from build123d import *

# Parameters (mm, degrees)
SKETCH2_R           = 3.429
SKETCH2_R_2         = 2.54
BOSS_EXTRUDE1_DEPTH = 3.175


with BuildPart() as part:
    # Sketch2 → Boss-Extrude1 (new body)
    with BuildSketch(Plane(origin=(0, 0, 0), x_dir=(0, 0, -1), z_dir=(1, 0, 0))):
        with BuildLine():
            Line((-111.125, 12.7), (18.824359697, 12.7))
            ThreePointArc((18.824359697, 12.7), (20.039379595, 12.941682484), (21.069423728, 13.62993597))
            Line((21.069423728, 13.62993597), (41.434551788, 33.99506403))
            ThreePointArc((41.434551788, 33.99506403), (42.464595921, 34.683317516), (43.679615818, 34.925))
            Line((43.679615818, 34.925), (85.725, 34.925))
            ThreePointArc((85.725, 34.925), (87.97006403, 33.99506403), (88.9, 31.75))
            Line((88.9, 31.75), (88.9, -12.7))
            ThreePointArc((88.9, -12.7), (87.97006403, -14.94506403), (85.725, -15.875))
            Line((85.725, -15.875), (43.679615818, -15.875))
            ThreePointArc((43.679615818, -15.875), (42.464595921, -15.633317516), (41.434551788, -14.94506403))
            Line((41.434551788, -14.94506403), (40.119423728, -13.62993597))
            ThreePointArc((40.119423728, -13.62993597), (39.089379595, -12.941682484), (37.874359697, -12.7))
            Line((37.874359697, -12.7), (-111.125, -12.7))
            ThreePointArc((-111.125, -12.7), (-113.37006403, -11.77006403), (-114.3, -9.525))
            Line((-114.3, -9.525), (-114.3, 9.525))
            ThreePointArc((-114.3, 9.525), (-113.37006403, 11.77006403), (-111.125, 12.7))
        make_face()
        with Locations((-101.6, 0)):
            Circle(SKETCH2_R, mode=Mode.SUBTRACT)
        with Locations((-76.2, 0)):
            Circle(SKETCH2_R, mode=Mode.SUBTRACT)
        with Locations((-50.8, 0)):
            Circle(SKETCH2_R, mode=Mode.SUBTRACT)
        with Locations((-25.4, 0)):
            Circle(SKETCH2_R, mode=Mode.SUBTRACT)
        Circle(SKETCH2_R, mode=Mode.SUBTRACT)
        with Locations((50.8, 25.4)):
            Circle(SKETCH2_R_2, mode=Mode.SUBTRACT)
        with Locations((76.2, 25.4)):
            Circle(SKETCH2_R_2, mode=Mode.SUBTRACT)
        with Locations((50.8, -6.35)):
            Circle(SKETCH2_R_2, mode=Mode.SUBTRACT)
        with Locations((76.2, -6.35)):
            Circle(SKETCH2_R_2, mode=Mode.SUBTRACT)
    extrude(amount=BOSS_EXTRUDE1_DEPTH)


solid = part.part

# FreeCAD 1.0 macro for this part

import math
import FreeCAD as App
import Part
import Sketcher
Q = App.Units.Quantity

doc = App.newDocument("Part")
body = doc.addObject("PartDesign::Body", "Body")

# Sketch on YZ plane
sketch1 = body.newObject("Sketcher::SketchObject", "Sketch")
sketch1.AttachmentSupport = (doc.getObject("YZ_Plane"), [""])
sketch1.MapMode = "FlatFace"
sketch1.addGeometry([
    Part.LineSegment(App.Vector(12.7, -18.82436, 0), App.Vector(12.7, 111.125, 0)),  # 0
    Part.ArcOfCircle(Part.Circle(App.Vector(9.525, 111.125, 0), App.Vector(0, 0, 1), 3.175), math.radians(0), math.radians(90)),  # 1
    Part.LineSegment(App.Vector(9.525, 114.3, 0), App.Vector(-9.525, 114.3, 0)),  # 2
    Part.ArcOfCircle(Part.Circle(App.Vector(-9.525, 111.125, 0), App.Vector(0, 0, 1), 3.175), math.radians(90), math.radians(180)),  # 3
    Part.LineSegment(App.Vector(-12.7, 111.125, 0), App.Vector(-12.7, -37.87436, 0)),  # 4
    Part.ArcOfCircle(Part.Circle(App.Vector(-15.875, -37.87436, 0), App.Vector(0, 0, 1), 3.175), math.radians(-45), math.radians(0)),  # 5
    Part.LineSegment(App.Vector(-13.629936, -40.119424, 0), App.Vector(-14.945064, -41.434552, 0)),  # 6
    Part.ArcOfCircle(Part.Circle(App.Vector(-12.7, -43.679616, 0), App.Vector(0, 0, 1), 3.175), math.radians(135), math.radians(180)),  # 7
    Part.LineSegment(App.Vector(-15.875, -43.679616, 0), App.Vector(-15.875, -85.725, 0)),  # 8
    Part.ArcOfCircle(Part.Circle(App.Vector(-12.7, -85.725, 0), App.Vector(0, 0, 1), 3.175), math.radians(-180), math.radians(-90)),  # 9
    Part.LineSegment(App.Vector(-12.7, -88.9, 0), App.Vector(31.75, -88.9, 0)),  # 10
    Part.ArcOfCircle(Part.Circle(App.Vector(31.75, -85.725, 0), App.Vector(0, 0, 1), 3.175), math.radians(-90), math.radians(0)),  # 11
    Part.LineSegment(App.Vector(34.925, -85.725, 0), App.Vector(34.925, -43.679616, 0)),  # 12
    Part.ArcOfCircle(Part.Circle(App.Vector(31.75, -43.679616, 0), App.Vector(0, 0, 1), 3.175), math.radians(0), math.radians(45)),  # 13
    Part.LineSegment(App.Vector(33.995064, -41.434552, 0), App.Vector(13.629936, -21.069424, 0)),  # 14
    Part.ArcOfCircle(Part.Circle(App.Vector(15.875, -18.82436, 0), App.Vector(0, 0, 1), 3.175), math.radians(180), math.radians(225)),  # 15
    Part.Circle(App.Vector(-6.35, -76.2, 0), App.Vector(0, 0, 1), 2.54),  # 16
    Part.Circle(App.Vector(-6.35, -50.8, 0), App.Vector(0, 0, 1), 2.54),  # 17
    Part.Circle(App.Vector(0, 0, 0), App.Vector(0, 0, 1), 3.429),  # 18
    Part.Circle(App.Vector(0, 25.4, 0), App.Vector(0, 0, 1), 3.429),  # 19
    Part.Circle(App.Vector(0, 50.8, 0), App.Vector(0, 0, 1), 3.429),  # 20
    Part.Circle(App.Vector(0, 76.2, 0), App.Vector(0, 0, 1), 3.429),  # 21
    Part.Circle(App.Vector(0, 101.6, 0), App.Vector(0, 0, 1), 3.429),  # 22
    Part.Circle(App.Vector(25.4, -76.2, 0), App.Vector(0, 0, 1), 2.54),  # 23
    Part.Circle(App.Vector(25.4, -50.8, 0), App.Vector(0, 0, 1), 2.54),  # 24
], False)
sketch1.addConstraint([
    Sketcher.Constraint("Tangent", 0, 2, 1, 1),
    Sketcher.Constraint("Tangent", 1, 2, 2, 1),
    Sketcher.Constraint("Tangent", 2, 2, 3, 1),
    Sketcher.Constraint("Tangent", 3, 2, 4, 1),
    Sketcher.Constraint("Tangent", 4, 2, 5, 2),
    Sketcher.Constraint("Tangent", 5, 1, 6, 1),
    Sketcher.Constraint("Tangent", 6, 2, 7, 1),
    Sketcher.Constraint("Tangent", 7, 2, 8, 1),
    Sketcher.Constraint("Tangent", 8, 2, 9, 1),
    Sketcher.Constraint("Tangent", 9, 2, 10, 1),
    Sketcher.Constraint("Tangent", 10, 2, 11, 1),
    Sketcher.Constraint("Tangent", 11, 2, 12, 1),
    Sketcher.Constraint("Tangent", 12, 2, 13, 1),
    Sketcher.Constraint("Tangent", 13, 2, 14, 1),
    Sketcher.Constraint("Tangent", 14, 2, 15, 2),
    Sketcher.Constraint("Tangent", 15, 1, 0, 1),
    Sketcher.Constraint("Vertical", 0),
    Sketcher.Constraint("Horizontal", 2),
    Sketcher.Constraint("Vertical", 4),
    Sketcher.Constraint("Vertical", 8),
    Sketcher.Constraint("Horizontal", 10),
    Sketcher.Constraint("Vertical", 12),
    Sketcher.Constraint("Coincident", 18, 3, -1, 1),
    Sketcher.Constraint("Equal", 1, 3),
    Sketcher.Constraint("Equal", 3, 5),
    Sketcher.Constraint("Equal", 5, 7),
    Sketcher.Constraint("Equal", 7, 9),
    Sketcher.Constraint("Equal", 9, 11),
    Sketcher.Constraint("Equal", 11, 13),
    Sketcher.Constraint("Equal", 13, 15),
    Sketcher.Constraint("Equal", 16, 17),
    Sketcher.Constraint("Equal", 18, 19),
    Sketcher.Constraint("Equal", 19, 20),
    Sketcher.Constraint("Equal", 20, 21),
    Sketcher.Constraint("Equal", 21, 22),
    Sketcher.Constraint("Equal", 17, 23),
    Sketcher.Constraint("Equal", 23, 24),
    Sketcher.Constraint("PointOnObject", 19, 3, -2),
    Sketcher.Constraint("PointOnObject", 20, 3, -2),
    Sketcher.Constraint("PointOnObject", 21, 3, -2),
    Sketcher.Constraint("PointOnObject", 22, 3, -2),
    Sketcher.Constraint("Perpendicular", 6, 14),
    Sketcher.Constraint("Horizontal", 7, 3, 13, 3),
    Sketcher.Constraint("Horizontal", 16, 3, 23, 3),
    Sketcher.Constraint("Horizontal", 17, 3, 24, 3),
    Sketcher.Constraint("Horizontal", 6, 2, 13, 2),
    Sketcher.Constraint("Vertical", 16, 3, 17, 3),
    Sketcher.Constraint("Vertical", 23, 3, 24, 3),
    Sketcher.Constraint("Vertical", 9, 3, 3, 2),
    Sketcher.Constraint("Diameter", 16, Q("0.2 in")),
    Sketcher.Constraint("Diameter", 18, Q("0.27 in")),
    Sketcher.Constraint("DistanceY", 16, 3, -1, 1, Q("3 in")),
    Sketcher.Constraint("DistanceY", 17, 3, -1, 1, Q("2 in")),
    Sketcher.Constraint("DistanceY", -1, 1, 19, 3, Q("1 in")),
    Sketcher.Constraint("DistanceY", -1, 1, 20, 3, Q("2 in")),
    Sketcher.Constraint("DistanceY", -1, 1, 21, 3, Q("3 in")),
    Sketcher.Constraint("DistanceY", -1, 1, 22, 3, Q("4 in")),
    Sketcher.Constraint("DistanceX", -1, 1, 23, 3, Q("1 in")),
    Sketcher.Constraint("Radius", 1, Q("0.125 in")),
    Sketcher.Constraint("DistanceX", 5, 3, 1, 3, Q("1 in")),
    Sketcher.Constraint("DistanceX", 10, 1, 10, 2, Q("1.75 in")),
    Sketcher.Constraint("DistanceX", 7, 3, -1, 1, Q("0.5 in")),
    Sketcher.Constraint("DistanceY", -1, 1, 1, 2, Q("4.5 in")),
    Sketcher.Constraint("DistanceY", 9, 2, -1, 1, Q("3.5 in")),
    Sketcher.Constraint("DistanceX", 16, 3, 11, 3, Q("1.5 in")),
    Sketcher.Constraint("DistanceY", 0, 1, 0, 2, 129.94936),
])
pad1 = body.newObject("PartDesign::Pad", "Pad")
pad1.Profile = sketch1
pad1.Length = Q("0.125 in")

doc.recompute()
